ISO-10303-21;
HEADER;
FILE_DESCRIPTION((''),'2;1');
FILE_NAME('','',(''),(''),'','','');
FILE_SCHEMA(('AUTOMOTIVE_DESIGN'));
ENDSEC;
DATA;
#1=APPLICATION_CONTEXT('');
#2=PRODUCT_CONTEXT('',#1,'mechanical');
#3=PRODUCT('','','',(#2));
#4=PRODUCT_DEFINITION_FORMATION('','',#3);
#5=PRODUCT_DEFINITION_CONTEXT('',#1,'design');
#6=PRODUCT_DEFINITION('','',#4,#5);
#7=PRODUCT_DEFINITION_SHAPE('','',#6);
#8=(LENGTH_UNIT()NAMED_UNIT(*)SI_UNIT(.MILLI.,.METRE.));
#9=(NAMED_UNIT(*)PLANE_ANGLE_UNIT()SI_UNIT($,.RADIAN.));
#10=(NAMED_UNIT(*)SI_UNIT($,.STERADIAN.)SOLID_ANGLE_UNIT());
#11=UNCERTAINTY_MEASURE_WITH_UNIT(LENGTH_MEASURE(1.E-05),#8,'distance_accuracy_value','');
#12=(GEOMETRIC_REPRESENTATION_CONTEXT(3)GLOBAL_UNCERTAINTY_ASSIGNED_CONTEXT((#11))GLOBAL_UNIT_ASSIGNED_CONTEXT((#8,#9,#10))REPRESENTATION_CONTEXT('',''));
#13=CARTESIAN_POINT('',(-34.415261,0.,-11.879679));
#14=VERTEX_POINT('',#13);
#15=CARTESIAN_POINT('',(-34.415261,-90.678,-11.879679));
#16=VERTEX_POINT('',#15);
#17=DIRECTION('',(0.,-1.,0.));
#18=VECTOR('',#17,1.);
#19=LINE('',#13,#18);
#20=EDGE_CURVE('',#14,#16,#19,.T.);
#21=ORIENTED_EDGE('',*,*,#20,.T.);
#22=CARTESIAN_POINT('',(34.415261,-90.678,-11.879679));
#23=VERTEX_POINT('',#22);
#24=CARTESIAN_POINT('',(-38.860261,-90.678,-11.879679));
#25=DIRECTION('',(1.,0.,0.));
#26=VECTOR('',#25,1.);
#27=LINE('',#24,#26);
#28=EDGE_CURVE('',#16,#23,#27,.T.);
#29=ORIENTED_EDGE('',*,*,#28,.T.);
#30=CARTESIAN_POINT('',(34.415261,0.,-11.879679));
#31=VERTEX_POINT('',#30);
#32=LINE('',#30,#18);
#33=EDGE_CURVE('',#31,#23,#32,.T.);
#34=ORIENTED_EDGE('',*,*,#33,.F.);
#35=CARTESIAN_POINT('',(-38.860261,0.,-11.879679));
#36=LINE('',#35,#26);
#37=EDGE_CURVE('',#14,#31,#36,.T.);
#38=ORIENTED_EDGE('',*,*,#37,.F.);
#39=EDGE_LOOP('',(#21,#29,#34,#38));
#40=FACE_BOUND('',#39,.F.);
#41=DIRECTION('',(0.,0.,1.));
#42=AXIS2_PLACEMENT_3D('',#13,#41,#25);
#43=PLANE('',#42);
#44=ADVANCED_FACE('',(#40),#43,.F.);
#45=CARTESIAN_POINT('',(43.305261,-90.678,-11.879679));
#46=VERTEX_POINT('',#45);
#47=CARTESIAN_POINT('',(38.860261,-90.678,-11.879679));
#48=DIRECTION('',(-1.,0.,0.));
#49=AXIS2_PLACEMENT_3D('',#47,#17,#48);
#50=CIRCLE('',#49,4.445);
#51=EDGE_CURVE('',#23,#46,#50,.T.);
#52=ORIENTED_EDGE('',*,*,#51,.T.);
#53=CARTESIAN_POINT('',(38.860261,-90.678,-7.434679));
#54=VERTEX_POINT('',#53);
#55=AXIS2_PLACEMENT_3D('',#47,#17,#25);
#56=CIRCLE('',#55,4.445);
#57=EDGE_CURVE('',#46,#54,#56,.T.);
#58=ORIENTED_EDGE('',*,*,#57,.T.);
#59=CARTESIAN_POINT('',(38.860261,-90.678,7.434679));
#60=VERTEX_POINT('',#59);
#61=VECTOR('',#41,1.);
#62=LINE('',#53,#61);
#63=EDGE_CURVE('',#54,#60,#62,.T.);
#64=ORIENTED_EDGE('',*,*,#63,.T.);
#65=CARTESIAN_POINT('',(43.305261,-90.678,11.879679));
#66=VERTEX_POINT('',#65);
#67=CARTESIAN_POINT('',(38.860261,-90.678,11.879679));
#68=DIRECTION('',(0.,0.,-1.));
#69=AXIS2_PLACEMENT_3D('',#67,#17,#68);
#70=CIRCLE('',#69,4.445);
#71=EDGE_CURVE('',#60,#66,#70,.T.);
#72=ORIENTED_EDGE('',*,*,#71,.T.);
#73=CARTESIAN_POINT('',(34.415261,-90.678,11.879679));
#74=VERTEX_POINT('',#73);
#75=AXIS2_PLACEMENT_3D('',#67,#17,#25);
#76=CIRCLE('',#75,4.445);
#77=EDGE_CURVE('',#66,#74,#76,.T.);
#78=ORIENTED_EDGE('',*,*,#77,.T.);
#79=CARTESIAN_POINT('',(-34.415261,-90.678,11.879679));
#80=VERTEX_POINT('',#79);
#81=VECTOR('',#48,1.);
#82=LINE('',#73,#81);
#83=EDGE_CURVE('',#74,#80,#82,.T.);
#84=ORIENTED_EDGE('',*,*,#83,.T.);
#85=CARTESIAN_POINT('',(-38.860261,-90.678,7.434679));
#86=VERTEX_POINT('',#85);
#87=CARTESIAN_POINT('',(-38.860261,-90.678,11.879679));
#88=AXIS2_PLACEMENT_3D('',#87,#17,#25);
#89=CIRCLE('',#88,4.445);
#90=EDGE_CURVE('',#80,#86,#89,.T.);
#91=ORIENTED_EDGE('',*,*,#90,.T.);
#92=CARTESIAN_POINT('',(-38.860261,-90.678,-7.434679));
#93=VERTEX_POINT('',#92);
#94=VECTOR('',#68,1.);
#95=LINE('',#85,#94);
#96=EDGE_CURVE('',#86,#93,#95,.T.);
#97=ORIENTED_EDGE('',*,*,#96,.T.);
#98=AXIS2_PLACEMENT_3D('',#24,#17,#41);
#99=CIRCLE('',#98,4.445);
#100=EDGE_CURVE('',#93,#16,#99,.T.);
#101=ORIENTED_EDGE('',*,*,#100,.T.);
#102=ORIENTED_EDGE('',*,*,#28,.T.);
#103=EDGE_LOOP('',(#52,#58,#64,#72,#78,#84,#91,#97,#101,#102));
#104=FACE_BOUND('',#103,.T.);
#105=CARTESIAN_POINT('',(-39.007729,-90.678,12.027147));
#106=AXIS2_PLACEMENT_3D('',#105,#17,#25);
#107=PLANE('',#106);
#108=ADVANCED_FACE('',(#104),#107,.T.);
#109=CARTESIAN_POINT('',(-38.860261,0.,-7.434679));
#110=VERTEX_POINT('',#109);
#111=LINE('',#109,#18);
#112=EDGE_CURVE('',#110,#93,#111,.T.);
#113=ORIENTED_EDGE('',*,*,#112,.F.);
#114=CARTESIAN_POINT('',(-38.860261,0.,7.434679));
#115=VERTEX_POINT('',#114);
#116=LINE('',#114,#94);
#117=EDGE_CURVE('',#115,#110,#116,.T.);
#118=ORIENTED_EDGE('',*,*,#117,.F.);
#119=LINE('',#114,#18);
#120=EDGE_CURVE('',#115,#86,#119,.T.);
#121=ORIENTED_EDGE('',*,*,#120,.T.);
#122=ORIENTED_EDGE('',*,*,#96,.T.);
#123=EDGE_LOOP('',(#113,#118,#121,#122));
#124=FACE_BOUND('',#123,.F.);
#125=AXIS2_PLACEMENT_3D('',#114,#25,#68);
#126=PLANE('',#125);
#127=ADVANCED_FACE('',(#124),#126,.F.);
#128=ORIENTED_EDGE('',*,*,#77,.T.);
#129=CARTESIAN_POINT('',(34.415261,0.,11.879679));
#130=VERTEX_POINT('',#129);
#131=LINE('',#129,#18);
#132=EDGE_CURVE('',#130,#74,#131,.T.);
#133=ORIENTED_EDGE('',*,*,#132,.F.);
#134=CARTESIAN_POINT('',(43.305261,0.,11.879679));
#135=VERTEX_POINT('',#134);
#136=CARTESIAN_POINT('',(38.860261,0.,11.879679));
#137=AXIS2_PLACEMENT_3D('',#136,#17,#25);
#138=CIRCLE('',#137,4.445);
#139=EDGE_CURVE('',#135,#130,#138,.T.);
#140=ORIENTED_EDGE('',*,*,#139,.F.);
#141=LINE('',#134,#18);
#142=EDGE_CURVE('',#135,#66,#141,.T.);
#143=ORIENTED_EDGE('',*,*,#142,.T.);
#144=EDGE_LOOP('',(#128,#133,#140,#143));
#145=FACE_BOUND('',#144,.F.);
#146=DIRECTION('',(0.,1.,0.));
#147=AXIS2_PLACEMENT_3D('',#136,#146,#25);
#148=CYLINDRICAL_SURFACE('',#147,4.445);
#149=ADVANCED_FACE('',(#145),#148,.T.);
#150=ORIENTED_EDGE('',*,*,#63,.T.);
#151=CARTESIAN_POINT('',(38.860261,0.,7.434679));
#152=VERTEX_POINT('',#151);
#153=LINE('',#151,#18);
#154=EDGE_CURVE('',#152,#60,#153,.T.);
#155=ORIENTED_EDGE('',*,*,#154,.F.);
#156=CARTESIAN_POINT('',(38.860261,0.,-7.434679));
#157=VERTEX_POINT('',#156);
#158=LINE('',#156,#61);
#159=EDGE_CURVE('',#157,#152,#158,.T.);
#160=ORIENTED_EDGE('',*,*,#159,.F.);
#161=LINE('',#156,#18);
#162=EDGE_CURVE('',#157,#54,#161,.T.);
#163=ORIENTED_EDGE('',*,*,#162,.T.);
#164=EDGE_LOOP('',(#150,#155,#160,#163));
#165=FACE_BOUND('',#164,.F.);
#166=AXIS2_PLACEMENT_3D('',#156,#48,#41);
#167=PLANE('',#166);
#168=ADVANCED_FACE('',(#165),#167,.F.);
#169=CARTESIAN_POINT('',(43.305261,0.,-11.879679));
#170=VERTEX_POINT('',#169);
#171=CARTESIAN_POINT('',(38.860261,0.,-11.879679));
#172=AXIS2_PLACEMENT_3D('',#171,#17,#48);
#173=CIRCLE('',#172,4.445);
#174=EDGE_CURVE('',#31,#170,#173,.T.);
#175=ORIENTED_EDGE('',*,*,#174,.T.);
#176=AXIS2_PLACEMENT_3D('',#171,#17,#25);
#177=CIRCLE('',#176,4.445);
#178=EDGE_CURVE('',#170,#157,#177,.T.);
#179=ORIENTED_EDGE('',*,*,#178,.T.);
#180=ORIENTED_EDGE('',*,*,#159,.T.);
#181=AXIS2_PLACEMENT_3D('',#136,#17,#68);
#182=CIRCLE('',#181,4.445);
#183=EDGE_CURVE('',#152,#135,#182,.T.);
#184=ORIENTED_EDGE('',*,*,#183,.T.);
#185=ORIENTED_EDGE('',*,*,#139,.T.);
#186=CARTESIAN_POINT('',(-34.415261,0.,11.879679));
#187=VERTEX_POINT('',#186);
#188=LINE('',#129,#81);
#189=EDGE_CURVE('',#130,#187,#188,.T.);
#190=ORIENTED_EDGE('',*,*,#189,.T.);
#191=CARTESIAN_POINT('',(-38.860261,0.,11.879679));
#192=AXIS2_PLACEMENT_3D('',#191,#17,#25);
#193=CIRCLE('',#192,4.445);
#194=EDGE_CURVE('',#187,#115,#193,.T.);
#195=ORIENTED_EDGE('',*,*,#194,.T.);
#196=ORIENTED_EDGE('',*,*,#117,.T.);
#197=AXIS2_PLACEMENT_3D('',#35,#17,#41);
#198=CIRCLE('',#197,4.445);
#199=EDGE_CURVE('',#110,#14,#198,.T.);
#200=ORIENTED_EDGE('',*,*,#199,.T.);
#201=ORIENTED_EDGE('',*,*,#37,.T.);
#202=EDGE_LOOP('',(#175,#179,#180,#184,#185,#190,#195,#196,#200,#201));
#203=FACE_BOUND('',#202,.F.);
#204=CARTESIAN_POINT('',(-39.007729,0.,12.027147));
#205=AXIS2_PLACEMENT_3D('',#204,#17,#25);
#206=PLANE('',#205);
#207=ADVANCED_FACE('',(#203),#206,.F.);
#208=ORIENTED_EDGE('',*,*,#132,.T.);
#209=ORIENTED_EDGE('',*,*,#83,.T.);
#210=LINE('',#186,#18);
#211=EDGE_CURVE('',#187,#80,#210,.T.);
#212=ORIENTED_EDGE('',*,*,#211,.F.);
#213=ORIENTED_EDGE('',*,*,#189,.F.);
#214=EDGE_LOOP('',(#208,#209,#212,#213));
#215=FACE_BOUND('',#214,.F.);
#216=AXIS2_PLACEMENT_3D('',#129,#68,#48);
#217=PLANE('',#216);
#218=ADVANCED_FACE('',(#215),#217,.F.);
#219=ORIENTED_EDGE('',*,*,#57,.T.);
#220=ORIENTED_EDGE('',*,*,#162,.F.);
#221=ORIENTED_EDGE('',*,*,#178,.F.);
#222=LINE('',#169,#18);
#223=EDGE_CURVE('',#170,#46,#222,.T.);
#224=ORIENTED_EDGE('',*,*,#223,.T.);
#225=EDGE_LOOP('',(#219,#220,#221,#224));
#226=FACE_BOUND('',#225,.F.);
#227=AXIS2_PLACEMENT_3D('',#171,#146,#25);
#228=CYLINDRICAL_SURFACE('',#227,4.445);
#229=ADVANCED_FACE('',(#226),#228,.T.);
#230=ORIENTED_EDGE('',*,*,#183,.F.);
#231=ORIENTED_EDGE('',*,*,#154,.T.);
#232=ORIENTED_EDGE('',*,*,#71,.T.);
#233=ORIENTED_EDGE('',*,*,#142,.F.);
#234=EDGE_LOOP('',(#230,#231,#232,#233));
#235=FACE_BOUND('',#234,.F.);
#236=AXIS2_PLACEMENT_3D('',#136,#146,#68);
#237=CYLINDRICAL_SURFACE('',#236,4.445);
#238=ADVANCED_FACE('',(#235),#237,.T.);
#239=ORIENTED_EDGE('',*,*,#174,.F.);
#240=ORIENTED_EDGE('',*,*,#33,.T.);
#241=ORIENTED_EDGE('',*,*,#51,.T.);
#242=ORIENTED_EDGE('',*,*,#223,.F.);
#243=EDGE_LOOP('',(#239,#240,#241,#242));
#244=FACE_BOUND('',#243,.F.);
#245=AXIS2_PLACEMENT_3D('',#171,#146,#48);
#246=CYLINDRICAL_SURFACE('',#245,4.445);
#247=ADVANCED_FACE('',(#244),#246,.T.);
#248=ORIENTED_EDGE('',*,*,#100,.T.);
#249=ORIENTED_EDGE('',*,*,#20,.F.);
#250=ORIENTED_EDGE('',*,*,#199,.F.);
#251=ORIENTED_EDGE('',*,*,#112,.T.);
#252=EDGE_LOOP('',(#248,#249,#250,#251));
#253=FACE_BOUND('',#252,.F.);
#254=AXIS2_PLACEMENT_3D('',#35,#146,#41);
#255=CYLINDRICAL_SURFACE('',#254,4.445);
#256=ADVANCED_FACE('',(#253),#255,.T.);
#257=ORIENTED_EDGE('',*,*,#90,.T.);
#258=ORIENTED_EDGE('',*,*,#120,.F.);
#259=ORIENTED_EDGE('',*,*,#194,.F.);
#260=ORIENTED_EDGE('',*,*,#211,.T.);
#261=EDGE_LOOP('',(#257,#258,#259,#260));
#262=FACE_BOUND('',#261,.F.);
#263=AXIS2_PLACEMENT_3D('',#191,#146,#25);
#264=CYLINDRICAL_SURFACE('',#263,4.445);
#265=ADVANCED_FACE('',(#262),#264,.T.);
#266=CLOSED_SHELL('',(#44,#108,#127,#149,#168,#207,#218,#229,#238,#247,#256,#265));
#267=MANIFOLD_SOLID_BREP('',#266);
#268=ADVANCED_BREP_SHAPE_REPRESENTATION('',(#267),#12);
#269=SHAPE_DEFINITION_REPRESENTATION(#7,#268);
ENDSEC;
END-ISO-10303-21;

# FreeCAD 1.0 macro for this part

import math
import FreeCAD as App
import Part
import Sketcher
from FreeCAD import Vector
Q = App.Units.Quantity

doc = App.newDocument("Part")
body = doc.addObject("PartDesign::Body", "Body")

# Sketch on XZ plane
sketch1 = body.newObject("Sketcher::SketchObject", "Sketch")
sketch1.AttachmentSupport = (doc.getObject("XZ_Plane"), [""])
sketch1.MapMode = "FlatFace"
sketch1.addGeometry([
    Part.ArcOfCircle(Part.Circle(Vector(-38.9, 11.9, 0), Vector(0, 0, 1), 4.4), math.radians(0), math.radians(270)),  # 0
    Part.LineSegment(Vector(-38.9, 7.4, 0), Vector(-38.9, -7.4, 0)),  # 1
    Part.ArcOfCircle(Part.Circle(Vector(-38.9, -11.9, 0), Vector(0, 0, 1), 4.4), math.radians(90), math.radians(360)),  # 2
    Part.LineSegment(Vector(-34.4, -11.9, 0), Vector(34.4, -11.9, 0)),  # 3
    Part.ArcOfCircle(Part.Circle(Vector(38.9, -11.9, 0), Vector(0, 0, 1), 4.4), math.radians(180), math.radians(360)),  # 4
    Part.ArcOfCircle(Part.Circle(Vector(38.9, -11.9, 0), Vector(0, 0, 1), 4.4), math.radians(0), math.radians(90)),  # 5
    Part.LineSegment(Vector(38.9, -7.4, 0), Vector(38.9, 7.4, 0)),  # 6
    Part.ArcOfCircle(Part.Circle(Vector(38.9, 11.9, 0), Vector(0, 0, 1), 4.4), math.radians(-90), math.radians(0)),  # 7
    Part.ArcOfCircle(Part.Circle(Vector(38.9, 11.9, 0), Vector(0, 0, 1), 4.4), math.radians(0), math.radians(180)),  # 8
    Part.LineSegment(Vector(34.4, 11.9, 0), Vector(-34.4, 11.9, 0)),  # 9
], False)
sketch1.addConstraint([
    Sketcher.Constraint("Coincident", 0, 2, 1, 1),
    Sketcher.Constraint("Coincident", 1, 2, 2, 1),
    Sketcher.Constraint("Coincident", 2, 2, 3, 1),
    Sketcher.Constraint("Coincident", 3, 2, 4, 1),
    Sketcher.Constraint("Tangent", 4, 2, 5, 1),
    Sketcher.Constraint("Coincident", 5, 2, 6, 1),
    Sketcher.Constraint("Coincident", 6, 2, 7, 1),
    Sketcher.Constraint("Tangent", 7, 2, 8, 1),
    Sketcher.Constraint("Coincident", 8, 2, 9, 1),
    Sketcher.Constraint("Coincident", 9, 2, 0, 1),
    Sketcher.Constraint("Vertical", 1),
    Sketcher.Constraint("Horizontal", 3),
    Sketcher.Constraint("Vertical", 6),
    Sketcher.Constraint("Horizontal", 9),
    Sketcher.Constraint("Equal", 0, 2),
    Sketcher.Constraint("Equal", 2, 4),
    Sketcher.Constraint("Equal", 4, 5),
    Sketcher.Constraint("Equal", 5, 7),
    Sketcher.Constraint("Equal", 7, 8),
    Sketcher.Constraint("Symmetric", 0, 3, 4, 3, -1, 1),
    Sketcher.Constraint("Symmetric", 2, 3, 7, 3, -1, 1),
    Sketcher.Constraint("Symmetric", 2, 3, 4, 3, -2),
    Sketcher.Constraint("Horizontal", 5, 3, 2, 2),
    Sketcher.Constraint("Horizontal", 3, 2, 4, 2),
    Sketcher.Constraint("Horizontal", 8, 3, 7, 2),
    Sketcher.Constraint("Horizontal", 7, 2, 8, 2),
    Sketcher.Constraint("Vertical", 2, 3, 0, 2),
    Sketcher.Constraint("Vertical", 8, 3, 5, 2),
    Sketcher.Constraint("Radius", 0, Q("0.175 in")),
    Sketcher.Constraint("DistanceX", 3, 1, 3, 2, Q("68.830523 mm")),
    Sketcher.Constraint("DistanceY", 1, 2, 1, 1, Q("14.869358 mm")),
])
pad1 = body.newObject("PartDesign::Pad", "Pad")
pad1.Profile = sketch1
pad1.Length = Q("3.57 in")

doc.recompute()
